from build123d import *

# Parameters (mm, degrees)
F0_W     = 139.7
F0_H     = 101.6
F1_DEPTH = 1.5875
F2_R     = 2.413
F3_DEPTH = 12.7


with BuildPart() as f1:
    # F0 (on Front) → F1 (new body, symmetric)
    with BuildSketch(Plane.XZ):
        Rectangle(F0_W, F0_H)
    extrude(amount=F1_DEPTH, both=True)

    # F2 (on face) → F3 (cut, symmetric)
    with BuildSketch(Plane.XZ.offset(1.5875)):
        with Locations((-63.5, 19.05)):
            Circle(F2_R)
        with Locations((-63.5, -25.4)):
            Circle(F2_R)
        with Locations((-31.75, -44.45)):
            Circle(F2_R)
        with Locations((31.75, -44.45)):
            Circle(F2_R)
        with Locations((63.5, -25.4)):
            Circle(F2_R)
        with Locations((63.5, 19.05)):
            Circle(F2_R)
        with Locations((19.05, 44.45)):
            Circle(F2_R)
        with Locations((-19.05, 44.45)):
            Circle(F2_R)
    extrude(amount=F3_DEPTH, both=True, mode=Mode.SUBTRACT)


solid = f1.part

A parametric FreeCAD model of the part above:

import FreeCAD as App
import Part
import Sketcher

V = App.Vector
Q = App.Units.Quantity

doc = App.newDocument("Part")
body = doc.addObject("PartDesign::Body", "Body")

# Sketch on XZ plane
sketch1 = doc.addObject("Sketcher::SketchObject", "Sketch")
body.addObject(sketch1)
sketch1.AttachmentSupport = (doc.XZ_Plane, [""])
sketch1.MapMode = "FlatFace"
sketch1.addGeometry([
    Part.LineSegment(V(-70, 51, 0), V(-70, -51, 0)),
    Part.LineSegment(V(-70, -51, 0), V(70, -51, 0)),
    Part.LineSegment(V(70, -51, 0), V(70, 51, 0)),
    Part.LineSegment(V(70, 51, 0), V(-70, 51, 0)),
], False)
sketch1.addConstraint([
    Sketcher.Constraint("Coincident", 0, 2, 1, 1),
    Sketcher.Constraint("Coincident", 1, 2, 2, 1),
    Sketcher.Constraint("Coincident", 2, 2, 3, 1),
    Sketcher.Constraint("Coincident", 3, 2, 0, 1),
    Sketcher.Constraint("Vertical", 0),
    Sketcher.Constraint("Horizontal", 1),
    Sketcher.Constraint("Vertical", 2),
    Sketcher.Constraint("Horizontal", 3),
    Sketcher.Constraint("Symmetric", 0, 2, 2, 2, -1, 1),
    Sketcher.Constraint("DistanceY", 0, 2, 0, 1, Q("4 in")),
    Sketcher.Constraint("DistanceX", 1, 1, 1, 2, Q("5.5 in")),
])
pad1 = doc.addObject("PartDesign::Pad", "Pad")
body.addObject(pad1)
pad1.Profile = sketch1
pad1.Length = Q("0.125 in")
pad1.Midplane = True

# Sketch on XZ plane
sketch2 = doc.addObject("Sketcher::SketchObject", "Sketch001")
body.addObject(sketch2)
sketch2.AttachmentSupport = (doc.XZ_Plane, [""])
sketch2.MapMode = "FlatFace"
sketch2.AttachmentOffset = App.Placement(V(0, 0, 0.0625 * 25.4), App.Rotation())
sketch2.addGeometry([
    Part.Circle(V(-63.5, 19.1, 0), V(0, 0, 1), 2.4),  # 0
    Part.Circle(V(-63.5, -25.4, 0), V(0, 0, 1), 2.4),  # 1
    Part.Circle(V(-31.8, -44.5, 0), V(0, 0, 1), 2.4),  # 2
    Part.Circle(V(31.8, -44.5, 0), V(0, 0, 1), 2.4),  # 3
    Part.Circle(V(63.5, -25.4, 0), V(0, 0, 1), 2.4),  # 4
    Part.Circle(V(63.5, 19.1, 0), V(0, 0, 1), 2.4),  # 5
    Part.Circle(V(19.1, 44.5, 0), V(0, 0, 1), 2.4),  # 6
    Part.Circle(V(-19.1, 44.5, 0), V(0, 0, 1), 2.4),  # 7
], False)
sketch2.addConstraint([
    Sketcher.Constraint("Equal", 0, 1),
    Sketcher.Constraint("Equal", 1, 2),
    Sketcher.Constraint("Equal", 2, 3),
    Sketcher.Constraint("Equal", 3, 4),
    Sketcher.Constraint("Equal", 4, 5),
    Sketcher.Constraint("Equal", 5, 6),
    Sketcher.Constraint("Equal", 6, 7),
    Sketcher.Constraint("Symmetric", 2, 3, 3, 3, -2),
    Sketcher.Constraint("Symmetric", 1, 3, 4, 3, -2),
    Sketcher.Constraint("Symmetric", 0, 3, 5, 3, -2),
    Sketcher.Constraint("Symmetric", 6, 3, 7, 3, -2),
    Sketcher.Constraint("Vertical", 0, 3, 1, 3),
    Sketcher.Constraint("Diameter", 0, Q("0.19 in")),
    Sketcher.Constraint("DistanceY", 1, 3, -1, 1, Q("1 in")),
    Sketcher.Constraint("DistanceX", 1, 3, 4, 3, Q("5 in")),
    Sketcher.Constraint("DistanceY", 5, 3, 6, 3, Q("1 in")),
    Sketcher.Constraint("DistanceX", 2, 3, 6, 3, Q("2 in")),
    Sketcher.Constraint("DistanceY", 2, 3, 0, 3, Q("2.5 in")),
    Sketcher.Constraint("DistanceX", 2, 3, 3, 3, Q("2.5 in")),
    Sketcher.Constraint("DistanceY", -1, 1, 0, 3, Q("0.75 in")),
])
pocket1 = doc.addObject("PartDesign::Pocket", "Pocket")
body.addObject(pocket1)
pocket1.Profile = sketch2
pocket1.Length = Q("1 in")
pocket1.Midplane = True

doc.recompute()
